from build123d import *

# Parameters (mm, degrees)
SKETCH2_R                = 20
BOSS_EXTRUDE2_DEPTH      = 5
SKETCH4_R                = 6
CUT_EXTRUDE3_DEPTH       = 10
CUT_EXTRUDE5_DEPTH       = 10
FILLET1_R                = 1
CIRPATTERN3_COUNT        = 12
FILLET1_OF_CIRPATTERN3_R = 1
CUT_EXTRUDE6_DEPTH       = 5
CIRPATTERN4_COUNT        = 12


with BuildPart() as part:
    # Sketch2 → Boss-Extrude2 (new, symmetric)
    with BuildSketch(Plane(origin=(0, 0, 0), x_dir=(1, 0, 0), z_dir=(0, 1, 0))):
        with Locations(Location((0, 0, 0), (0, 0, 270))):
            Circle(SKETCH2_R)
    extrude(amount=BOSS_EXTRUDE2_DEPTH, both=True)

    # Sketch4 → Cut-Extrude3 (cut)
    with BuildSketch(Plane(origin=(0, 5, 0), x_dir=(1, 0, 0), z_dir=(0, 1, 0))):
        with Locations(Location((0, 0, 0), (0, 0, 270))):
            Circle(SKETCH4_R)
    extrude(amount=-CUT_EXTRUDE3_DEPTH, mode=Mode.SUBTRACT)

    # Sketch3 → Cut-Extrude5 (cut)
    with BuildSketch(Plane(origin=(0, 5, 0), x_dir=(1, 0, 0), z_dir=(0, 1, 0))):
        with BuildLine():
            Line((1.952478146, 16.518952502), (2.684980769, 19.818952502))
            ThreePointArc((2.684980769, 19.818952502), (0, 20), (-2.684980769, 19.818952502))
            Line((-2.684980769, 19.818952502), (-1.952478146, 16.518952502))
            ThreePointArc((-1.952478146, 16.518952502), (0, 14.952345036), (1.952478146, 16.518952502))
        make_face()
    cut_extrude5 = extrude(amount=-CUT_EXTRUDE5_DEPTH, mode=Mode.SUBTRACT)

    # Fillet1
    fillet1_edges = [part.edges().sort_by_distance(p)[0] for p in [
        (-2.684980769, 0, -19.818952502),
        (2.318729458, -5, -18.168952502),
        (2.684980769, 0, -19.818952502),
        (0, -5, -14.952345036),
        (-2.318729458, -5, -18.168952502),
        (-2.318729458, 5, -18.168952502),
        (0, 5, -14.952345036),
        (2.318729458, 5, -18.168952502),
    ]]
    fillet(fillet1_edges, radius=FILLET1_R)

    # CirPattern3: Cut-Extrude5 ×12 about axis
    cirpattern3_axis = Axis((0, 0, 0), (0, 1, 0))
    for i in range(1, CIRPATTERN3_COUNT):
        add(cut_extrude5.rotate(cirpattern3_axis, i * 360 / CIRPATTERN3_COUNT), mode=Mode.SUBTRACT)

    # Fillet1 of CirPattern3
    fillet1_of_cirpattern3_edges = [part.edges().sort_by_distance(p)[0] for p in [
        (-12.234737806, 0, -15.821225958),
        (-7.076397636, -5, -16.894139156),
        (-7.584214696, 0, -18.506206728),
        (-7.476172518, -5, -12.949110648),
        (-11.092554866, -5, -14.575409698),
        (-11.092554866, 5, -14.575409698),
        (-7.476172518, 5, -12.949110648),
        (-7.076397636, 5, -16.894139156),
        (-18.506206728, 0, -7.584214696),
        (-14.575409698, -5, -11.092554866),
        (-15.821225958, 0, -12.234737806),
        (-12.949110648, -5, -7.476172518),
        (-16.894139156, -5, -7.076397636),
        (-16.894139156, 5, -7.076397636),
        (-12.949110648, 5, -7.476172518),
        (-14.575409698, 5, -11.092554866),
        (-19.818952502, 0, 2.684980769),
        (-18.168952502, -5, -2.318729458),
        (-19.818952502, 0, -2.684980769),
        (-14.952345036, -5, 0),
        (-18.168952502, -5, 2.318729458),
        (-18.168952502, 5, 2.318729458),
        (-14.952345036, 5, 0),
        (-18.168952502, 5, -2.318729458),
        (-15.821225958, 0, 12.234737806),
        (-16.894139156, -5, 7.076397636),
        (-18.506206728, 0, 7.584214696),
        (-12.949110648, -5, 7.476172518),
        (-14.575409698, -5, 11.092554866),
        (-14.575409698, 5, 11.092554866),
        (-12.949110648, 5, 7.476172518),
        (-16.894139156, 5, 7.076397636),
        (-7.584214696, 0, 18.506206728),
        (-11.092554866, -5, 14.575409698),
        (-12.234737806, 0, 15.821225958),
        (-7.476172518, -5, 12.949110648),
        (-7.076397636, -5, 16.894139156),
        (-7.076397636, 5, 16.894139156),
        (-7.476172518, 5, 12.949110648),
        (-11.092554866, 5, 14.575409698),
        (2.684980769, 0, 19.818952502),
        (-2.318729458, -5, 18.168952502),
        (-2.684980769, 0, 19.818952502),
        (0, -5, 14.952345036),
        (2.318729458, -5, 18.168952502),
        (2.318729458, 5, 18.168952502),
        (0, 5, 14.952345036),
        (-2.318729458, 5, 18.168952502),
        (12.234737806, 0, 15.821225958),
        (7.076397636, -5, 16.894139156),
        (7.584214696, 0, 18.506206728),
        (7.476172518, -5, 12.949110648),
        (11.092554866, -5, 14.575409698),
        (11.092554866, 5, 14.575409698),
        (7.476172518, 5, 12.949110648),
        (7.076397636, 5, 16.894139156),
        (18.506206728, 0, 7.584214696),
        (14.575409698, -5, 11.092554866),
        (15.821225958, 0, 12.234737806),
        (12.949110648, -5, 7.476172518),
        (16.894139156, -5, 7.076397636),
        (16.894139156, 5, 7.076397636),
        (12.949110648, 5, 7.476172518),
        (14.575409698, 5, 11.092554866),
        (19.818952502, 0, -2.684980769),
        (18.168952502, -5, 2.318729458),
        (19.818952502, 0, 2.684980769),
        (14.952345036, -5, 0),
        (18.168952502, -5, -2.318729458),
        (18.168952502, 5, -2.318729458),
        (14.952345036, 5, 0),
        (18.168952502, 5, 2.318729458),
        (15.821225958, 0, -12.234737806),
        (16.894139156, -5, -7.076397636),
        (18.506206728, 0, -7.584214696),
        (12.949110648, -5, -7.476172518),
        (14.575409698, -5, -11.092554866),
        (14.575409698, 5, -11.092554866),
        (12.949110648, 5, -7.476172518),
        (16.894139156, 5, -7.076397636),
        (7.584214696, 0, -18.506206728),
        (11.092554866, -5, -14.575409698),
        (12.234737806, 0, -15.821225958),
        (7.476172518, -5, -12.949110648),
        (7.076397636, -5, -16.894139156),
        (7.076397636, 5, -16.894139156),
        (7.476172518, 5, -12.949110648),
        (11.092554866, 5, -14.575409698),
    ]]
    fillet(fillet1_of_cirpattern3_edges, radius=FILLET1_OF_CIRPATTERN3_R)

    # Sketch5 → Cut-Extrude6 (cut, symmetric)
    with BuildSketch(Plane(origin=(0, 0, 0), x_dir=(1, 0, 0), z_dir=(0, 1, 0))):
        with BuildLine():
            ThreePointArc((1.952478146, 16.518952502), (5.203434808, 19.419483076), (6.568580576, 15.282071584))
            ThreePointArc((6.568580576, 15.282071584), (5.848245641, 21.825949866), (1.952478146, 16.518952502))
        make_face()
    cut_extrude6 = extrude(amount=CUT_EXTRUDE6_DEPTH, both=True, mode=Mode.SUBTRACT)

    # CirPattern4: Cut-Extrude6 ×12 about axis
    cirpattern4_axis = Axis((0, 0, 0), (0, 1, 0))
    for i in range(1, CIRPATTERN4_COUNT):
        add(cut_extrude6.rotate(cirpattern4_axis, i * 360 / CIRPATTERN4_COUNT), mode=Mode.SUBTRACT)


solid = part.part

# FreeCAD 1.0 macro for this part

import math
import FreeCAD as App
import Part
import Sketcher


def edges_at(feature, points):
    """Names of the edges that pass closest to the given points."""
    edges = feature.Shape.Edges
    near = lambda p: min(range(len(edges)), key=lambda i: edges[i].distToShape(Part.Vertex(*p))[0])
    return sorted({f"Edge{near(p) + 1}" for p in points})

doc = App.newDocument("Part")
body = doc.addObject("PartDesign::Body", "Body")

sketch1 = body.newObject("Sketcher::SketchObject", "Sketch")
sketch1.AttachmentSupport = (doc.getObject("XZ_Plane"), [""])
sketch1.MapMode = "FlatFace"
sketch1.addGeometry(Part.Circle(App.Vector(0, 0, 0), App.Vector(0, 0, 1), 20), False)
sketch1.addConstraint(Sketcher.Constraint("Coincident", 0, 3, -1, 1))
sketch1.addConstraint(Sketcher.Constraint("Diameter", 0, 40.0))
pad1 = body.newObject("PartDesign::Pad", "Pad")
pad1.Profile = sketch1
pad1.Length = 10
pad1.Midplane = True

sketch2 = body.newObject("Sketcher::SketchObject", "Sketch001")
sketch2.AttachmentSupport = (doc.getObject("XZ_Plane"), [""])
sketch2.MapMode = "FlatFace"
sketch2.AttachmentOffset = App.Placement(App.Vector(0, 0, -5), App.Rotation())
sketch2.addGeometry(Part.Circle(App.Vector(0, 0, 0), App.Vector(0, 0, 1), 6), False)
sketch2.addConstraint(Sketcher.Constraint("Coincident", 0, 3, -1, 1))
sketch2.addConstraint(Sketcher.Constraint("Diameter", 0, 12.0))
pocket1 = body.newObject("PartDesign::Pocket", "Pocket")
pocket1.Profile = sketch2
pocket1.Length = 10
pocket1.Reversed = True

sketch3 = body.newObject("Sketcher::SketchObject", "Sketch002")
sketch3.AttachmentSupport = (doc.getObject("XZ_Plane"), [""])
sketch3.MapMode = "FlatFace"
sketch3.AttachmentOffset = App.Placement(App.Vector(0, 0, -5), App.Rotation())
sketch3.addGeometry(Part.LineSegment(App.Vector(2, -16.5, 0), App.Vector(2.7, -19.8, 0)), False)
sketch3.addGeometry(Part.ArcOfCircle(Part.Circle(App.Vector(0, 0, 0), App.Vector(0, 0, 1), 20), math.radians(-97.72), math.radians(-82.28)), False)
sketch3.addGeometry(Part.LineSegment(App.Vector(-2.7, -19.8, 0), App.Vector(-2, -16.5, 0)), False)
sketch3.addGeometry(Part.ArcOfCircle(Part.Circle(App.Vector(0, -17, 0), App.Vector(0, 0, 1), 2), math.radians(13), math.radians(167)), False)
sketch3.addConstraint(Sketcher.Constraint("Coincident", 0, 2, 1, 2))
sketch3.addConstraint(Sketcher.Constraint("Coincident", 1, 1, 2, 1))
sketch3.addConstraint(Sketcher.Constraint("Tangent", 2, 2, 3, 2))
sketch3.addConstraint(Sketcher.Constraint("Tangent", 3, 1, 0, 1))
sketch3.addConstraint(Sketcher.Constraint("Coincident", 1, 3, -1, 1))
sketch3.addConstraint(Sketcher.Constraint("Symmetric", 2, 2, 3, 1, -2))
sketch3.addConstraint(Sketcher.Constraint("Radius", 1, 20.0))
sketch3.addConstraint(Sketcher.Constraint("Radius", 3, 2.0))
sketch3.addConstraint(Sketcher.Constraint("DistanceY", 1, 1, 2, 2, 3.3))
sketch3.addConstraint(Sketcher.Constraint("Distance", 0, 3.38032))
pocket2 = body.newObject("PartDesign::Pocket", "Pocket001")
pocket2.Profile = sketch3
pocket2.Length = 10
pocket2.Reversed = True
doc.recompute()

fillet = body.newObject("PartDesign::Fillet", "Fillet")
fillet.Base = (pocket2, edges_at(pocket2, [
    (-2.685, 0, -19.819),
    (2.319, -5, -18.169),
    (2.685, 0, -19.819),
    (0, -5, -14.952),
    (-2.319, -5, -18.169),
    (-2.319, 5, -18.169),
    (0, 5, -14.952),
    (2.319, 5, -18.169),
]))
fillet.Radius = 1
doc.recompute()

polarpattern = body.newObject("PartDesign::PolarPattern", "PolarPattern")
polarpattern.Originals = [pocket2]
polarpattern.Axis = (doc.getObject("Y_Axis"), [""])
polarpattern.Angle = 360
polarpattern.Occurrences = 12
body.Tip = polarpattern
doc.recompute()

fillet2 = body.newObject("PartDesign::Fillet", "Fillet001")
fillet2.Base = (polarpattern, edges_at(polarpattern, [
    (-12.235, 0, -15.821),
    (-7.076, -5, -16.894),
    (-7.584, 0, -18.506),
    (-7.476, -5, -12.949),
    (-11.093, -5, -14.575),
    (-11.093, 5, -14.575),
    (-7.476, 5, -12.949),
    (-7.076, 5, -16.894),
    (-18.506, 0, -7.584),
    (-14.575, -5, -11.093),
    (-15.821, 0, -12.235),
    (-12.949, -5, -7.476),
    (-16.894, -5, -7.076),
    (-16.894, 5, -7.076),
    (-12.949, 5, -7.476),
    (-14.575, 5, -11.093),
    (-19.819, 0, 2.685),
    (-18.169, -5, -2.319),
    (-19.819, 0, -2.685),
    (-14.952, -5, 0),
    (-18.169, -5, 2.319),
    (-18.169, 5, 2.319),
    (-14.952, 5, 0),
    (-18.169, 5, -2.319),
    (-15.821, 0, 12.235),
    (-16.894, -5, 7.076),
    (-18.506, 0, 7.584),
    (-12.949, -5, 7.476),
    (-14.575, -5, 11.093),
    (-14.575, 5, 11.093),
    (-12.949, 5, 7.476),
    (-16.894, 5, 7.076),
    (-7.584, 0, 18.506),
    (-11.093, -5, 14.575),
    (-12.235, 0, 15.821),
    (-7.476, -5, 12.949),
    (-7.076, -5, 16.894),
    (-7.076, 5, 16.894),
    (-7.476, 5, 12.949),
    (-11.093, 5, 14.575),
    (2.685, 0, 19.819),
    (-2.319, -5, 18.169),
    (-2.685, 0, 19.819),
    (0, -5, 14.952),
    (2.319, -5, 18.169),
    (2.319, 5, 18.169),
    (0, 5, 14.952),
    (-2.319, 5, 18.169),
    (12.235, 0, 15.821),
    (7.076, -5, 16.894),
    (7.584, 0, 18.506),
    (7.476, -5, 12.949),
    (11.093, -5, 14.575),
    (11.093, 5, 14.575),
    (7.476, 5, 12.949),
    (7.076, 5, 16.894),
    (18.506, 0, 7.584),
    (14.575, -5, 11.093),
    (15.821, 0, 12.235),
    (12.949, -5, 7.476),
    (16.894, -5, 7.076),
    (16.894, 5, 7.076),
    (12.949, 5, 7.476),
    (14.575, 5, 11.093),
    (19.819, 0, -2.685),
    (18.169, -5, 2.319),
    (19.819, 0, 2.685),
    (14.952, -5, 0),
    (18.169, -5, -2.319),
    (18.169, 5, -2.319),
    (14.952, 5, 0),
    (18.169, 5, 2.319),
    (15.821, 0, -12.235),
    (16.894, -5, -7.076),
    (18.506, 0, -7.584),
    (12.949, -5, -7.476),
    (14.575, -5, -11.093),
    (14.575, 5, -11.093),
    (12.949, 5, -7.476),
    (16.894, 5, -7.076),
    (7.584, 0, -18.506),
    (11.093, -5, -14.575),
    (12.235, 0, -15.821),
    (7.476, -5, -12.949),
    (7.076, -5, -16.894),
    (7.076, 5, -16.894),
    (7.476, 5, -12.949),
    (11.093, 5, -14.575),
]))
fillet2.Radius = 1

sketch4 = body.newObject("Sketcher::SketchObject", "Sketch003")
sketch4.AttachmentSupport = (doc.getObject("XZ_Plane"), [""])
sketch4.MapMode = "FlatFace"
sketch4.addGeometry(Part.ArcOfCircle(Part.Circle(App.Vector(4.5, -16.9, 0), App.Vector(0, 0, 1), 2.6), math.radians(172), math.radians(398)), False)
sketch4.addGeometry(Part.ArcOfCircle(Part.Circle(App.Vector(4.9, -18.4, 0), App.Vector(0, 0, 1), 3.5), math.radians(148), math.radians(422)), False)
sketch4.addConstraint(Sketcher.Constraint("Coincident", 0, 1, 1, 1))
sketch4.addConstraint(Sketcher.Constraint("Coincident", 1, 2, 0, 2))
sketch4.addConstraint(Sketcher.Constraint("Radius", 1, 3.5326))
sketch4.addConstraint(Sketcher.Constraint("Radius", 0, 2.605166))
sketch4.addConstraint(Sketcher.Constraint("DistanceX", -1, 1, 0, 3, 4.529168))
sketch4.addConstraint(Sketcher.Constraint("DistanceX", -1, 1, 1, 3, 4.933941))
sketch4.addConstraint(Sketcher.Constraint("DistanceY", 1, 3, -1, 1, 18.41372))
sketch4.addConstraint(Sketcher.Constraint("DistanceX", -1, 1, 0, 1, 1.952478))
pocket3 = body.newObject("PartDesign::Pocket", "Pocket002")
pocket3.Profile = sketch4
pocket3.Length = 10
pocket3.Midplane = True
doc.recompute()

polarpattern2 = body.newObject("PartDesign::PolarPattern", "PolarPattern001")
polarpattern2.Originals = [pocket3]
polarpattern2.Axis = (doc.getObject("Y_Axis"), [""])
polarpattern2.Angle = 360
polarpattern2.Occurrences = 12
body.Tip = polarpattern2

doc.recompute()
